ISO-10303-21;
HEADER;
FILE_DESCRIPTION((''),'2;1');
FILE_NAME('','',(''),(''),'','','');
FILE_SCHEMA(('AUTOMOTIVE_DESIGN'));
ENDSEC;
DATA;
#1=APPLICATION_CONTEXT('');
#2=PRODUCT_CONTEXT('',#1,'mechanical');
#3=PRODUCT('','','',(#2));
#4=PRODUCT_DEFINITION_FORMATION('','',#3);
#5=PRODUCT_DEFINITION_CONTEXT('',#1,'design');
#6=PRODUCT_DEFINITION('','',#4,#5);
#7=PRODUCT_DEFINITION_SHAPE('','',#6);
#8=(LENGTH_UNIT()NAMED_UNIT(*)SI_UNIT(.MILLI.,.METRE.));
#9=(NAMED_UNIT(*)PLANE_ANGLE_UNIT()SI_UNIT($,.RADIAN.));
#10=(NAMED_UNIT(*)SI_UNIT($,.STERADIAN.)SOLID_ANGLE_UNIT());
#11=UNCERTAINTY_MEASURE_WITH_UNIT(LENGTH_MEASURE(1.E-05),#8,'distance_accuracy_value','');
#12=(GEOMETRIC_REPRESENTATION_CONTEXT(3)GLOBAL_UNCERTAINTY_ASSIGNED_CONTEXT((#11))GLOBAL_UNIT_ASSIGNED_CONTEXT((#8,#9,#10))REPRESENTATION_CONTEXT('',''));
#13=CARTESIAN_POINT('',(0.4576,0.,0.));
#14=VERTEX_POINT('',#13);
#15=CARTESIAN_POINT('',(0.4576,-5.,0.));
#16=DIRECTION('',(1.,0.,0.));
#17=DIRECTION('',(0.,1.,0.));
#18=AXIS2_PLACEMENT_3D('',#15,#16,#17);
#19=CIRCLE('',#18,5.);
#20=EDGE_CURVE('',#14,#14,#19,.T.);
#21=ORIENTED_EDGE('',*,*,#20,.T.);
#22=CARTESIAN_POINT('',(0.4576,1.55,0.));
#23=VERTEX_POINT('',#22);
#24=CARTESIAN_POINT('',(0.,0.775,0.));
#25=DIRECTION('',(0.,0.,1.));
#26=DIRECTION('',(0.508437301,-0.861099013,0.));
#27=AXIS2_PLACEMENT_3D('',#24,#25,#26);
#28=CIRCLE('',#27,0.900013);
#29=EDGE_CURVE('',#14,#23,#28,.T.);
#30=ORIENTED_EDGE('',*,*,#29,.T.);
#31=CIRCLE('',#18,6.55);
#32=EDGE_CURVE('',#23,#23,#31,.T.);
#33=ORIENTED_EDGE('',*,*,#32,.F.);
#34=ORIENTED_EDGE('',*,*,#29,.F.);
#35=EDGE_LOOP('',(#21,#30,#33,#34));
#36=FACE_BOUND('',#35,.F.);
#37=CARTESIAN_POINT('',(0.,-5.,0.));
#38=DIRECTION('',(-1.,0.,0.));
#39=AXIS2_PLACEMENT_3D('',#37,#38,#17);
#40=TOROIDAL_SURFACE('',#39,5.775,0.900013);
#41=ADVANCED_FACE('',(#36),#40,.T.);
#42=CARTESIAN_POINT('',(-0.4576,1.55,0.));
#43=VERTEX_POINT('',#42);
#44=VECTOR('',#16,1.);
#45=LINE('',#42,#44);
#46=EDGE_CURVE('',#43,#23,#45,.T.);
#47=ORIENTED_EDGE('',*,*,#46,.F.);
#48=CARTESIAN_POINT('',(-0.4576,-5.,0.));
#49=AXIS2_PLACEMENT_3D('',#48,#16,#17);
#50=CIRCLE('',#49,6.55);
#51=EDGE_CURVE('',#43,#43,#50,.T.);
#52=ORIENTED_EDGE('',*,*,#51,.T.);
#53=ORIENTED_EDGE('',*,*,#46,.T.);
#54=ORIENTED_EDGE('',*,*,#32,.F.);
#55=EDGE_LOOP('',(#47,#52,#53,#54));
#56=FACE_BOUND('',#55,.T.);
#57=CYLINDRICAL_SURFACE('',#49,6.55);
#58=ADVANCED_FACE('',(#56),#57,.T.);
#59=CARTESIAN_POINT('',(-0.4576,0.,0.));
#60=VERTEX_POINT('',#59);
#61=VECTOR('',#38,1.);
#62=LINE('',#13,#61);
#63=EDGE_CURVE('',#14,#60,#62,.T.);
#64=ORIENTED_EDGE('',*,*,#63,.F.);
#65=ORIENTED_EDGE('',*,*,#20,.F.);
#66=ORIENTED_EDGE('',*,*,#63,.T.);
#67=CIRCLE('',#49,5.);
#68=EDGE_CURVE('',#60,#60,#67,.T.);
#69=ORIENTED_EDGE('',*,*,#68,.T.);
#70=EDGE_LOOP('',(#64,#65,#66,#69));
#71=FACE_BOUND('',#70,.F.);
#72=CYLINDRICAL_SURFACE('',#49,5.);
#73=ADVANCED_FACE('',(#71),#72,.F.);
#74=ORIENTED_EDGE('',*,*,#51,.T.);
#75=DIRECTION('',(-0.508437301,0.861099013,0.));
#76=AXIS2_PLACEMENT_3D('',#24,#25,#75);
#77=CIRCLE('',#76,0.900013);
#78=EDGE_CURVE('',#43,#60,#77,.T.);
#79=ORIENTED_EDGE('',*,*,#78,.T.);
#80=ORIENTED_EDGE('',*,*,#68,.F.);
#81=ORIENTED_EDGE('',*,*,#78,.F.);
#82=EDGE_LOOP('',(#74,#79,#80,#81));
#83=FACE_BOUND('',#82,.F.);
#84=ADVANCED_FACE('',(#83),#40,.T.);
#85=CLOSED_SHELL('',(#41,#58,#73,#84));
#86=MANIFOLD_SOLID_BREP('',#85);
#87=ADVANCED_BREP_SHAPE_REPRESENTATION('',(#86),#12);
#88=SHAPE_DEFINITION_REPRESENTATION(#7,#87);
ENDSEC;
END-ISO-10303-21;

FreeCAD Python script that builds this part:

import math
import FreeCAD as App
import Part
import Sketcher

doc = App.newDocument("Part")
body = doc.addObject("PartDesign::Body", "Body")

# Sketch on XY plane
sketch1 = body.newObject("Sketcher::SketchObject", "Sketch")
sketch1.AttachmentSupport = (doc.getObject("XY_Plane"), [""])
sketch1.MapMode = "FlatFace"
sketch1.addGeometry([
    Part.ArcOfCircle(Part.Circle(App.Vector(0, 0.8, 0), App.Vector(0, 0, 1), 0.9), math.radians(121), math.radians(239)),
    Part.LineSegment(App.Vector(-0.5, 0, 0), App.Vector(0.5, 0, 0)),
    Part.ArcOfCircle(Part.Circle(App.Vector(0, 0.8, 0), App.Vector(0, 0, 1), 0.9), math.radians(-59), math.radians(59)),
    Part.LineSegment(App.Vector(0.5, 1.6, 0), App.Vector(-0.5, 1.6, 0)),
], False)
sketch1.addGeometry(Part.LineSegment(App.Vector(-0.5, -5, 0), App.Vector(0.5, -5, 0)), True)  # axis
sketch1.addConstraint([
    Sketcher.Constraint("Coincident", 0, 2, 1, 1),
    Sketcher.Constraint("Coincident", 1, 2, 2, 1),
    Sketcher.Constraint("Coincident", 2, 2, 3, 1),
    Sketcher.Constraint("Coincident", 3, 2, 0, 1),
    Sketcher.Constraint("Horizontal", 1),
    Sketcher.Constraint("Horizontal", 3),
    Sketcher.Constraint("Horizontal", 4),
    Sketcher.Constraint("Coincident", 2, 3, 0, 3),
    Sketcher.Constraint("Equal", 0, 2),
    Sketcher.Constraint("Symmetric", 0, 2, 1, 2, -1, 1),
    Sketcher.Constraint("Vertical", 1, 2, 2, 2),
    Sketcher.Constraint("Vertical", 3, 2, 4, 1),
    Sketcher.Constraint("Vertical", 2, 2, 4, 2),
    Sketcher.Constraint("Radius", 0, 0.9),
    Sketcher.Constraint("DistanceY", -1, 1, 2, 2, 1.55),
    Sketcher.Constraint("DistanceY", 4, 1, -1, 1, 5.0),
])
revolution = body.newObject("PartDesign::Revolution", "Revolution")
revolution.Profile = sketch1
revolution.ReferenceAxis = (sketch1, ["Axis0"])
revolution.Angle = 360

doc.recompute()
